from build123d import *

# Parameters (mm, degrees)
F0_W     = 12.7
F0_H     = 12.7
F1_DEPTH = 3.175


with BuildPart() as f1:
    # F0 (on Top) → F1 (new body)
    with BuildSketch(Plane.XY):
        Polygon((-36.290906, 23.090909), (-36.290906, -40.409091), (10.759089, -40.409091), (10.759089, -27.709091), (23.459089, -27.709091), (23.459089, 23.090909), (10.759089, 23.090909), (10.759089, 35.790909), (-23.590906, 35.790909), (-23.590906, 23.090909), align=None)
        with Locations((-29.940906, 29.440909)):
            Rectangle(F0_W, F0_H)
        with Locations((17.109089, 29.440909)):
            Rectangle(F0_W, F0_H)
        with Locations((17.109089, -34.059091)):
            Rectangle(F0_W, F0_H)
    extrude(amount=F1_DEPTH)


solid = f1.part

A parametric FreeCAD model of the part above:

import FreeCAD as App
import Part
import Sketcher
Q = App.Units.Quantity

doc = App.newDocument("Part")
params = doc.addObject("Spreadsheet::Sheet", "Params")
for row, (alias, value) in enumerate([
    ("sketch1_height", "3 in"),
    ("pad1_length", "0.125 in"),
], start=1):
    params.set(f"A{row}", alias)
    params.set(f"B{row}", "=" + value)
    params.setAlias(f"B{row}", alias)

body = doc.addObject("PartDesign::Body", "Body")

sketch1 = body.newObject("Sketcher::SketchObject", "Sketch")
sketch1.AttachmentSupport = (doc.getObject("XY_Plane"), [""])
sketch1.MapMode = "FlatFace"
sketch1.addGeometry([
    Part.LineSegment(App.Vector(-36, -40, 0), App.Vector(23, -40, 0)),
    Part.LineSegment(App.Vector(23, -40, 0), App.Vector(23, 36, 0)),
    Part.LineSegment(App.Vector(23, 36, 0), App.Vector(-36, 36, 0)),
    Part.LineSegment(App.Vector(-36, 36, 0), App.Vector(-36, -40, 0)),
], False)
sketch1.addConstraint([
    Sketcher.Constraint("Coincident", 0, 2, 1, 1),
    Sketcher.Constraint("Coincident", 1, 2, 2, 1),
    Sketcher.Constraint("Coincident", 2, 2, 3, 1),
    Sketcher.Constraint("Coincident", 3, 2, 0, 1),
    Sketcher.Constraint("Horizontal", 0),
    Sketcher.Constraint("Vertical", 1),
    Sketcher.Constraint("Horizontal", 2),
    Sketcher.Constraint("Vertical", 3),
    Sketcher.Constraint("DistanceY", 1, 1, 1, 2, Q("3 in")),
    Sketcher.Constraint("DistanceX", 0, 1, 0, 2, Q("59.749995 mm")),
    Sketcher.Constraint("DistanceX", -1, 1, 0, 2, Q("23.459089 mm")),
    Sketcher.Constraint("DistanceY", 0, 2, -1, 1, Q("40.409091 mm")),
])
sketch1.setExpression("Constraints[8]", "Params.sketch1_height")
pad1 = body.newObject("PartDesign::Pad", "Pad")
pad1.Profile = sketch1
pad1.setExpression("Length", "Params.pad1_length")

doc.recompute()
